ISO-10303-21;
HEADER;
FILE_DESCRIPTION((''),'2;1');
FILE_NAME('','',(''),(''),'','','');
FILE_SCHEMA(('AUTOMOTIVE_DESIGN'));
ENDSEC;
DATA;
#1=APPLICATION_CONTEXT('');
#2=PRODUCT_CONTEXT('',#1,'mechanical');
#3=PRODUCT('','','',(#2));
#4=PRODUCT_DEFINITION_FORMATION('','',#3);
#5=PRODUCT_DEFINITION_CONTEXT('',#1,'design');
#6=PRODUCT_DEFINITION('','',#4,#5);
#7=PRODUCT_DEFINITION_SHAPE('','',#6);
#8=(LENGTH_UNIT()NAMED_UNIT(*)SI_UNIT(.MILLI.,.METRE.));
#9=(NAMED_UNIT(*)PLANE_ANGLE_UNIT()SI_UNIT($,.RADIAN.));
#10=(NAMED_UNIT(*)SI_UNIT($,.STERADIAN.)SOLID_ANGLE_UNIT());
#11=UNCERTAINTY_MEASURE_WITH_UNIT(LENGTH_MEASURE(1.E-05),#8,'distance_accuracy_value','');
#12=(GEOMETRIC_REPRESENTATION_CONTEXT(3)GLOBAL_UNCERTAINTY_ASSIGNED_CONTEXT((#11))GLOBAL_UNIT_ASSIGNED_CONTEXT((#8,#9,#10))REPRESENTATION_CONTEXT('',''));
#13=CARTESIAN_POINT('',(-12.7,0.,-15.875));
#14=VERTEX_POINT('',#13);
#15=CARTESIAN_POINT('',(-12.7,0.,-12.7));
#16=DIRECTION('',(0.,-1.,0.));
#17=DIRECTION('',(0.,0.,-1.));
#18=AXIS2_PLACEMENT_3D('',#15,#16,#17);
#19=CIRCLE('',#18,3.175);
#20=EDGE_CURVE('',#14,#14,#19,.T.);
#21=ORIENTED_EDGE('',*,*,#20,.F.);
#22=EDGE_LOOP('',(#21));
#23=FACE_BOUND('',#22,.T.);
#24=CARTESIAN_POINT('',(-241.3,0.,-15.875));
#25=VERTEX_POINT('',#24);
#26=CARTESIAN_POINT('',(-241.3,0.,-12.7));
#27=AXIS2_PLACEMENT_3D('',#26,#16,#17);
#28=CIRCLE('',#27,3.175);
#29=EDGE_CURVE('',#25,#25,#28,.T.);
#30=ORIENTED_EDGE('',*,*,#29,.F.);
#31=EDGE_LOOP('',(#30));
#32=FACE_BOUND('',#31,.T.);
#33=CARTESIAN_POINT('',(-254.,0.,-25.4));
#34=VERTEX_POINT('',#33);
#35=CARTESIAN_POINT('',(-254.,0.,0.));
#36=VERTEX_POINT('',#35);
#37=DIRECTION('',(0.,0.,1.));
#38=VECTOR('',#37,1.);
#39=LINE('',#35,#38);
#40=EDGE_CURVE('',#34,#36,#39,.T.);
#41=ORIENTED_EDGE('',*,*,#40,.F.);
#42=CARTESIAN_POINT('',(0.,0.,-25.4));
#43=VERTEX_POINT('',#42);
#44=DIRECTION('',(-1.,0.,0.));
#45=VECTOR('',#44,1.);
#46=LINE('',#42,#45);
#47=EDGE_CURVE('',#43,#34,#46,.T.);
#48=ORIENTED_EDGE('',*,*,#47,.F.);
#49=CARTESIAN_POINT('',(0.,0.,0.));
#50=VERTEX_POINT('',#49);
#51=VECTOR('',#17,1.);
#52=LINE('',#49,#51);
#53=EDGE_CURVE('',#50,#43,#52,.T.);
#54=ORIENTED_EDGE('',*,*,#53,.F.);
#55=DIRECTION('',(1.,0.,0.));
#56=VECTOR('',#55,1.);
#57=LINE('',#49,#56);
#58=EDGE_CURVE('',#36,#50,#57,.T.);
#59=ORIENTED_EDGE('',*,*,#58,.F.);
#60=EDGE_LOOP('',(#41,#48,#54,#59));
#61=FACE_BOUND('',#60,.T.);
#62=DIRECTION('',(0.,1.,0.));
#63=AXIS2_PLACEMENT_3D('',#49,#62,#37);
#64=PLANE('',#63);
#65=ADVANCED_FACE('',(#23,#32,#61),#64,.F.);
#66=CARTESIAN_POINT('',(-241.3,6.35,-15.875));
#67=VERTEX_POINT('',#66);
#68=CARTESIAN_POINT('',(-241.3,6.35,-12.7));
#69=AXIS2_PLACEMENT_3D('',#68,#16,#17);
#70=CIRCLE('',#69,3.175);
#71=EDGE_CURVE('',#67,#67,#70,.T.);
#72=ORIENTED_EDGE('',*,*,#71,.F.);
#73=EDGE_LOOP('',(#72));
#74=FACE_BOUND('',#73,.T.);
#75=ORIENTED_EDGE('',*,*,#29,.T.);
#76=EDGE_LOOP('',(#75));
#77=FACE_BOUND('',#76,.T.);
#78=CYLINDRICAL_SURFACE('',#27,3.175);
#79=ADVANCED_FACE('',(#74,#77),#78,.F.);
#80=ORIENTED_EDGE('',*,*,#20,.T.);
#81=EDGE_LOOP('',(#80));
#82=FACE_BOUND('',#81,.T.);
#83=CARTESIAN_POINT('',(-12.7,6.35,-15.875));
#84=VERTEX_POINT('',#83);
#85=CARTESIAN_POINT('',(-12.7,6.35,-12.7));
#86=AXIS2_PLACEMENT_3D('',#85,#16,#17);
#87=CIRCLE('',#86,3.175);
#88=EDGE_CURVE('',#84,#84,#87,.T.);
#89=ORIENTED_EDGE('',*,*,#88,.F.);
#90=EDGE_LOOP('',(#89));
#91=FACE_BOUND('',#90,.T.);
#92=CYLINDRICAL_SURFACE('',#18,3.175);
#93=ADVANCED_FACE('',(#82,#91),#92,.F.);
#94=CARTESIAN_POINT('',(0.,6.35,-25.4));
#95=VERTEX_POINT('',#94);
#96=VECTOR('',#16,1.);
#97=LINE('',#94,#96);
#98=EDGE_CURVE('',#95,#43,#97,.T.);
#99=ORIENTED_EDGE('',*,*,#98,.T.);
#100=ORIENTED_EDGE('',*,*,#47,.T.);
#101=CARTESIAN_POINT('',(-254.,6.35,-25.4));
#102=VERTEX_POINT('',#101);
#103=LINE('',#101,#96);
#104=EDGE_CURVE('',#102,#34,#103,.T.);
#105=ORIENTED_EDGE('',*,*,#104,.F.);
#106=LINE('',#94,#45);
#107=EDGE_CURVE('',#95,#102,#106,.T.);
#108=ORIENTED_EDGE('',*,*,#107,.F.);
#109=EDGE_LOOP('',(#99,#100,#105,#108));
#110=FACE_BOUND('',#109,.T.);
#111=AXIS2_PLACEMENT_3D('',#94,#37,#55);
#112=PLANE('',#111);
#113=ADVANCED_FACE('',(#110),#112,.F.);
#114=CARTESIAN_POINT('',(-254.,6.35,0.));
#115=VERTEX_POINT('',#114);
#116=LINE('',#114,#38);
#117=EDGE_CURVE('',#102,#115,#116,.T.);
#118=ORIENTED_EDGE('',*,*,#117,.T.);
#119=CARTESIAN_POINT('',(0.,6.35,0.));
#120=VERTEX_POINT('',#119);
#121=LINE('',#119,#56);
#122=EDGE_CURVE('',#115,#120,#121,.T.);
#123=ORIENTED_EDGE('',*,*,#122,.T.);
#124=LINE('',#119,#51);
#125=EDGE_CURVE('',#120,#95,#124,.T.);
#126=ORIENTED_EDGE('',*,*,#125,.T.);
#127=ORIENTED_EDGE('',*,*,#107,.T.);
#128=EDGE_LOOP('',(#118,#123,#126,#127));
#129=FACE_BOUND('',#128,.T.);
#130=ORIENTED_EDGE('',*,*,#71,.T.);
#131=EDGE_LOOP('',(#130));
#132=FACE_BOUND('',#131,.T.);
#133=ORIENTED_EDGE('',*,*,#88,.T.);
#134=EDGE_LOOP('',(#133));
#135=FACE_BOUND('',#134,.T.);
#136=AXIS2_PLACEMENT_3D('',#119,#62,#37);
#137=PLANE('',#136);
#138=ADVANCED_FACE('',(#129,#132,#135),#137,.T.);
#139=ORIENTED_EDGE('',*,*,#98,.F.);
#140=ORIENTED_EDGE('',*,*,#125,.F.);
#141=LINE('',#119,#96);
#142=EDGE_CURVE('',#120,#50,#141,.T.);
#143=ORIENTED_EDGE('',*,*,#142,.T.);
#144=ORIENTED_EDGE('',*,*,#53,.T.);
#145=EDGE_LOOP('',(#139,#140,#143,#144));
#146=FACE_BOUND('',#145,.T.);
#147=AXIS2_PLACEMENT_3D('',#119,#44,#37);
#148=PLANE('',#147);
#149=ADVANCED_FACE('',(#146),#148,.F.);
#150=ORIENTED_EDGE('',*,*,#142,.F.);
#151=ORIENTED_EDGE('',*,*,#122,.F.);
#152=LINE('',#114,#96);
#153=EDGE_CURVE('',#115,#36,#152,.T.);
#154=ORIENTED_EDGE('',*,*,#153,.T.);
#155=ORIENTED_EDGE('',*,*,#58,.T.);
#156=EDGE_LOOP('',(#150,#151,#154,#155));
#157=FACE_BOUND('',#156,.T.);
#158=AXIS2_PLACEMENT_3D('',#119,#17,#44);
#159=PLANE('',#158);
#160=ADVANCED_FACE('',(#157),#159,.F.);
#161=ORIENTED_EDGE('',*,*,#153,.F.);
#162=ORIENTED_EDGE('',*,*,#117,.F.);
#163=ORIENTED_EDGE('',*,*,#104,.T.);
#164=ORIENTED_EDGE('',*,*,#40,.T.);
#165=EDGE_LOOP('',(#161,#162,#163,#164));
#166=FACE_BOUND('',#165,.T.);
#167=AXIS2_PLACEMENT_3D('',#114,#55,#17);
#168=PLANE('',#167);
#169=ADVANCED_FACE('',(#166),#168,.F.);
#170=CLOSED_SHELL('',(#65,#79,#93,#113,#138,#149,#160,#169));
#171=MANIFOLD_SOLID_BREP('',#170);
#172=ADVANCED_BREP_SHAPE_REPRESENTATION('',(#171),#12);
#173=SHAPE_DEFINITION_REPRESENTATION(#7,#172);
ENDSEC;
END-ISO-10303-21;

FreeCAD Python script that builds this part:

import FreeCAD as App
import Part
import Sketcher
from FreeCAD import Vector
Q = App.Units.Quantity


def add_polygon(sketch, points):
    """Adds a closed chain of lines whose ends are joined by coincident constraints."""
    first, n = sketch.GeometryCount, len(points)
    for a, b in zip(points, points[1:] + points[:1]):
        sketch.addGeometry(Part.LineSegment(App.Vector(*a, 0), App.Vector(*b, 0)), False)
    for i in range(n):
        sketch.addConstraint(Sketcher.Constraint("Coincident", first + i, 2, first + (i + 1) % n, 1))

doc = App.newDocument("Part")
body = doc.addObject("PartDesign::Body", "Body")

sketch1 = body.newObject("Sketcher::SketchObject", "Sketch")
sketch1.AttachmentSupport = (doc.getObject("XZ_Plane"), [""])
sketch1.MapMode = "FlatFace"
add_polygon(sketch1, [(-254, -25), (-254, 0), (0, 0), (0, -25)])
sketch1.addConstraint(Sketcher.Constraint("Vertical", 0))
sketch1.addConstraint(Sketcher.Constraint("Horizontal", 1))
sketch1.addConstraint(Sketcher.Constraint("Vertical", 2))
sketch1.addConstraint(Sketcher.Constraint("Horizontal", 3))
sketch1.addConstraint(Sketcher.Constraint("Coincident", 1, 2, -1, 1))
sketch1.addConstraint(Sketcher.Constraint("DistanceX", 1, 1, 1, 2, Q("10 in")))
sketch1.addConstraint(Sketcher.Constraint("DistanceY", 0, 1, 0, 2, Q("1 in")))
pad1 = body.newObject("PartDesign::Pad", "Pad")
pad1.Profile = sketch1
pad1.Length = Q("0.25 in")
pad1.Reversed = True

sketch2 = body.newObject("Sketcher::SketchObject", "Sketch001")
sketch2.AttachmentSupport = (doc.getObject("XZ_Plane"), [""])
sketch2.MapMode = "FlatFace"
sketch2.addGeometry(Part.Circle(Vector(-241.3, -12.7, 0), Vector(0, 0, 1), 3.2), False)
sketch2.addGeometry(Part.Circle(Vector(-12.7, -12.7, 0), Vector(0, 0, 1), 3.2), False)
sketch2.addConstraint(Sketcher.Constraint("Equal", 0, 1))
sketch2.addConstraint(Sketcher.Constraint("Horizontal", 0, 3, 1, 3))
sketch2.addConstraint(Sketcher.Constraint("Diameter", 0, Q("0.25 in")))
sketch2.addConstraint(Sketcher.Constraint("DistanceX", 0, 3, 1, 3, Q("9 in")))
sketch2.addConstraint(Sketcher.Constraint("DistanceX", 0, 3, -1, 1, Q("9.5 in")))
sketch2.addConstraint(Sketcher.Constraint("DistanceY", 0, 3, -1, 1, Q("0.5 in")))
doc.recompute()
hole = body.newObject("PartDesign::Hole", "Hole")
hole.Profile = sketch2
hole.ThreadType = "None"
hole.Diameter = Q("0.25 in")
hole.DepthType = "ThroughAll"

doc.recompute()
